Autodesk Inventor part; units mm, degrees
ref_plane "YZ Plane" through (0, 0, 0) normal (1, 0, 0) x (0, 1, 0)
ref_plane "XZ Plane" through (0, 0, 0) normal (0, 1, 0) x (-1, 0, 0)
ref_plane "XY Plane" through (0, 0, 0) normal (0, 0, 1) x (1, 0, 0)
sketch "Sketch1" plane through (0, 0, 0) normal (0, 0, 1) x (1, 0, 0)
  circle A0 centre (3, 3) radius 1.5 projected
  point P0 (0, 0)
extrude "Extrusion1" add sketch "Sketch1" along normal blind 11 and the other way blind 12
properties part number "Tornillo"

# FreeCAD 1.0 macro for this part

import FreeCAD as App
import Part
import Sketcher
from FreeCAD import Vector

doc = App.newDocument("Part")
body = doc.addObject("PartDesign::Body", "Body")

sketch1 = body.newObject("Sketcher::SketchObject", "Sketch")
sketch1.AttachmentSupport = (doc.getObject("XY_Plane"), [""])
sketch1.MapMode = "FlatFace"
sketch1.addGeometry(Part.Circle(Vector(3, 3, 0), Vector(0, 0, 1), 1.5), False)
sketch1.addConstraint([
    Sketcher.Constraint("Diameter", 0, 3.0),
    Sketcher.Constraint("DistanceX", -1, 1, 0, 3, 3.0),
    Sketcher.Constraint("DistanceY", -1, 1, 0, 3, 3.0),
])
pad1 = body.newObject("PartDesign::Pad", "Pad")
pad1.Profile = sketch1
pad1.Type = "TwoLengths"
pad1.Length = 11
pad1.Length2 = 12

doc.recompute()
